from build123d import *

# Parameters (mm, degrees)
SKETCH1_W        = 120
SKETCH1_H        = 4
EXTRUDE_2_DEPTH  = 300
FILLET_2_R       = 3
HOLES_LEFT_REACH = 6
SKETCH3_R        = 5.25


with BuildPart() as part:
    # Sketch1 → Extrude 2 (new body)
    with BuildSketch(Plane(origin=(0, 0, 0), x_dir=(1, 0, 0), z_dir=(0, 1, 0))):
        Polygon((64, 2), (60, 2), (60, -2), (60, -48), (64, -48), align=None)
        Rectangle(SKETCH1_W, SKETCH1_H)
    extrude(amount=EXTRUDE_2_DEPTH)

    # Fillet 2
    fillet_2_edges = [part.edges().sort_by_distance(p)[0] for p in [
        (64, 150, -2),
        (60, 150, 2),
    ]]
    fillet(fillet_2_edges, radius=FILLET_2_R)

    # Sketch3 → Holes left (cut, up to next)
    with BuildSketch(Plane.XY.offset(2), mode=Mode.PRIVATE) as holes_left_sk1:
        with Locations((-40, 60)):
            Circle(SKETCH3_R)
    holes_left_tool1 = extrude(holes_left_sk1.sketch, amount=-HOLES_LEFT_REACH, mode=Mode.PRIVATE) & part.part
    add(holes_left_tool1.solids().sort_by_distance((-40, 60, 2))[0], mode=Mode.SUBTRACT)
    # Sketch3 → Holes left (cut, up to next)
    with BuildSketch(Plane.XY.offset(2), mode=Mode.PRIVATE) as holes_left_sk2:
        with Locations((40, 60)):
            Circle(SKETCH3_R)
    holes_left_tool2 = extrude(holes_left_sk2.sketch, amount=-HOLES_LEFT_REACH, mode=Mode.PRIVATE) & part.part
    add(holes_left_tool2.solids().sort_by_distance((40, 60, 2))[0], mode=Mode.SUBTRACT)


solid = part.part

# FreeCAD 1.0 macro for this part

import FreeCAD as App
import Part
import Sketcher

V = App.Vector
Q = App.Units.Quantity


def edges_at(feature, points):
    """Names of the edges that pass closest to the given points."""
    edges = feature.Shape.Edges
    near = lambda p: min(range(len(edges)), key=lambda i: edges[i].distToShape(Part.Vertex(*p))[0])
    return sorted({f"Edge{near(p) + 1}" for p in points})

doc = App.newDocument("Part")
body = doc.addObject("PartDesign::Body", "Body")

# Sketch on XZ plane
sketch1 = body.newObject("Sketcher::SketchObject", "Sketch")
sketch1.AttachmentSupport = (doc.getObject("XZ_Plane"), [""])
sketch1.MapMode = "FlatFace"
sketch1.addGeometry([
    Part.LineSegment(V(64, -2, 0), V(-60, -2, 0)),  # 0
    Part.LineSegment(V(-60, -2, 0), V(-60, 2, 0)),  # 1
    Part.LineSegment(V(-60, 2, 0), V(60, 2, 0)),  # 2
    Part.LineSegment(V(60, 2, 0), V(60, 48, 0)),  # 3
    Part.LineSegment(V(60, 48, 0), V(64, 48, 0)),  # 4
    Part.LineSegment(V(64, 48, 0), V(64, -2, 0)),  # 5
], False)
sketch1.addConstraint([
    Sketcher.Constraint("Coincident", 0, 2, 1, 1),
    Sketcher.Constraint("Coincident", 1, 2, 2, 1),
    Sketcher.Constraint("Coincident", 2, 2, 3, 1),
    Sketcher.Constraint("Coincident", 3, 2, 4, 1),
    Sketcher.Constraint("Coincident", 4, 2, 5, 1),
    Sketcher.Constraint("Coincident", 5, 2, 0, 1),
    Sketcher.Constraint("Horizontal", 0),
    Sketcher.Constraint("Vertical", 1),
    Sketcher.Constraint("Horizontal", 2),
    Sketcher.Constraint("Vertical", 3),
    Sketcher.Constraint("Horizontal", 4),
    Sketcher.Constraint("Vertical", 5),
    Sketcher.Constraint("Symmetric", 0, 2, 2, 2, -1, 1),
    Sketcher.Constraint("Equal", 4, 1),
    Sketcher.Constraint("DistanceX", 0, 2, 0, 1, Q("124 mm")),
    Sketcher.Constraint("DistanceX", 2, 1, 2, 2, Q("120 mm")),
    Sketcher.Constraint("DistanceY", 3, 1, 3, 2, Q("46 mm")),
])
pad1 = body.newObject("PartDesign::Pad", "Pad")
pad1.Profile = sketch1
pad1.Length = 300
pad1.Reversed = True
doc.recompute()

fillet = body.newObject("PartDesign::Fillet", "Fillet")
fillet.Base = (pad1, edges_at(pad1, [(64, 150, -2), (60, 150, 2)]))
fillet.Radius = 3

# Sketch on XY plane
sketch2 = body.newObject("Sketcher::SketchObject", "Sketch001")
sketch2.AttachmentSupport = (doc.getObject("XY_Plane"), [""])
sketch2.MapMode = "FlatFace"
sketch2.AttachmentOffset = App.Placement(V(0, 0, 2), App.Rotation())
sketch2.addGeometry(Part.Circle(V(-40, 60, 0), V(0, 0, 1), 5), False)
sketch2.addConstraint([
    Sketcher.Constraint("Diameter", 0, Q("10.5 mm")),
    Sketcher.Constraint("DistanceX", 0, 3, -1, 1, Q("40 mm")),
    Sketcher.Constraint("DistanceY", -1, 1, 0, 3, Q("60 mm")),
])
pocket1 = body.newObject("PartDesign::Pocket", "Pocket")
pocket1.Profile = sketch2
pocket1.Type = "UpToFirst"

# Sketch on XY plane
sketch3 = body.newObject("Sketcher::SketchObject", "Sketch002")
sketch3.AttachmentSupport = (doc.getObject("XY_Plane"), [""])
sketch3.MapMode = "FlatFace"
sketch3.AttachmentOffset = App.Placement(V(0, 0, 2), App.Rotation())
sketch3.addGeometry(Part.Circle(V(40, 60, 0), V(0, 0, 1), 5), False)
sketch3.addConstraint([
    Sketcher.Constraint("Diameter", 0, Q("10.5 mm")),
    Sketcher.Constraint("DistanceX", -1, 1, 0, 3, Q("40 mm")),
    Sketcher.Constraint("DistanceY", -1, 1, 0, 3, Q("60 mm")),
])
pocket2 = body.newObject("PartDesign::Pocket", "Pocket001")
pocket2.Profile = sketch3
pocket2.Type = "UpToFirst"

doc.recompute()
